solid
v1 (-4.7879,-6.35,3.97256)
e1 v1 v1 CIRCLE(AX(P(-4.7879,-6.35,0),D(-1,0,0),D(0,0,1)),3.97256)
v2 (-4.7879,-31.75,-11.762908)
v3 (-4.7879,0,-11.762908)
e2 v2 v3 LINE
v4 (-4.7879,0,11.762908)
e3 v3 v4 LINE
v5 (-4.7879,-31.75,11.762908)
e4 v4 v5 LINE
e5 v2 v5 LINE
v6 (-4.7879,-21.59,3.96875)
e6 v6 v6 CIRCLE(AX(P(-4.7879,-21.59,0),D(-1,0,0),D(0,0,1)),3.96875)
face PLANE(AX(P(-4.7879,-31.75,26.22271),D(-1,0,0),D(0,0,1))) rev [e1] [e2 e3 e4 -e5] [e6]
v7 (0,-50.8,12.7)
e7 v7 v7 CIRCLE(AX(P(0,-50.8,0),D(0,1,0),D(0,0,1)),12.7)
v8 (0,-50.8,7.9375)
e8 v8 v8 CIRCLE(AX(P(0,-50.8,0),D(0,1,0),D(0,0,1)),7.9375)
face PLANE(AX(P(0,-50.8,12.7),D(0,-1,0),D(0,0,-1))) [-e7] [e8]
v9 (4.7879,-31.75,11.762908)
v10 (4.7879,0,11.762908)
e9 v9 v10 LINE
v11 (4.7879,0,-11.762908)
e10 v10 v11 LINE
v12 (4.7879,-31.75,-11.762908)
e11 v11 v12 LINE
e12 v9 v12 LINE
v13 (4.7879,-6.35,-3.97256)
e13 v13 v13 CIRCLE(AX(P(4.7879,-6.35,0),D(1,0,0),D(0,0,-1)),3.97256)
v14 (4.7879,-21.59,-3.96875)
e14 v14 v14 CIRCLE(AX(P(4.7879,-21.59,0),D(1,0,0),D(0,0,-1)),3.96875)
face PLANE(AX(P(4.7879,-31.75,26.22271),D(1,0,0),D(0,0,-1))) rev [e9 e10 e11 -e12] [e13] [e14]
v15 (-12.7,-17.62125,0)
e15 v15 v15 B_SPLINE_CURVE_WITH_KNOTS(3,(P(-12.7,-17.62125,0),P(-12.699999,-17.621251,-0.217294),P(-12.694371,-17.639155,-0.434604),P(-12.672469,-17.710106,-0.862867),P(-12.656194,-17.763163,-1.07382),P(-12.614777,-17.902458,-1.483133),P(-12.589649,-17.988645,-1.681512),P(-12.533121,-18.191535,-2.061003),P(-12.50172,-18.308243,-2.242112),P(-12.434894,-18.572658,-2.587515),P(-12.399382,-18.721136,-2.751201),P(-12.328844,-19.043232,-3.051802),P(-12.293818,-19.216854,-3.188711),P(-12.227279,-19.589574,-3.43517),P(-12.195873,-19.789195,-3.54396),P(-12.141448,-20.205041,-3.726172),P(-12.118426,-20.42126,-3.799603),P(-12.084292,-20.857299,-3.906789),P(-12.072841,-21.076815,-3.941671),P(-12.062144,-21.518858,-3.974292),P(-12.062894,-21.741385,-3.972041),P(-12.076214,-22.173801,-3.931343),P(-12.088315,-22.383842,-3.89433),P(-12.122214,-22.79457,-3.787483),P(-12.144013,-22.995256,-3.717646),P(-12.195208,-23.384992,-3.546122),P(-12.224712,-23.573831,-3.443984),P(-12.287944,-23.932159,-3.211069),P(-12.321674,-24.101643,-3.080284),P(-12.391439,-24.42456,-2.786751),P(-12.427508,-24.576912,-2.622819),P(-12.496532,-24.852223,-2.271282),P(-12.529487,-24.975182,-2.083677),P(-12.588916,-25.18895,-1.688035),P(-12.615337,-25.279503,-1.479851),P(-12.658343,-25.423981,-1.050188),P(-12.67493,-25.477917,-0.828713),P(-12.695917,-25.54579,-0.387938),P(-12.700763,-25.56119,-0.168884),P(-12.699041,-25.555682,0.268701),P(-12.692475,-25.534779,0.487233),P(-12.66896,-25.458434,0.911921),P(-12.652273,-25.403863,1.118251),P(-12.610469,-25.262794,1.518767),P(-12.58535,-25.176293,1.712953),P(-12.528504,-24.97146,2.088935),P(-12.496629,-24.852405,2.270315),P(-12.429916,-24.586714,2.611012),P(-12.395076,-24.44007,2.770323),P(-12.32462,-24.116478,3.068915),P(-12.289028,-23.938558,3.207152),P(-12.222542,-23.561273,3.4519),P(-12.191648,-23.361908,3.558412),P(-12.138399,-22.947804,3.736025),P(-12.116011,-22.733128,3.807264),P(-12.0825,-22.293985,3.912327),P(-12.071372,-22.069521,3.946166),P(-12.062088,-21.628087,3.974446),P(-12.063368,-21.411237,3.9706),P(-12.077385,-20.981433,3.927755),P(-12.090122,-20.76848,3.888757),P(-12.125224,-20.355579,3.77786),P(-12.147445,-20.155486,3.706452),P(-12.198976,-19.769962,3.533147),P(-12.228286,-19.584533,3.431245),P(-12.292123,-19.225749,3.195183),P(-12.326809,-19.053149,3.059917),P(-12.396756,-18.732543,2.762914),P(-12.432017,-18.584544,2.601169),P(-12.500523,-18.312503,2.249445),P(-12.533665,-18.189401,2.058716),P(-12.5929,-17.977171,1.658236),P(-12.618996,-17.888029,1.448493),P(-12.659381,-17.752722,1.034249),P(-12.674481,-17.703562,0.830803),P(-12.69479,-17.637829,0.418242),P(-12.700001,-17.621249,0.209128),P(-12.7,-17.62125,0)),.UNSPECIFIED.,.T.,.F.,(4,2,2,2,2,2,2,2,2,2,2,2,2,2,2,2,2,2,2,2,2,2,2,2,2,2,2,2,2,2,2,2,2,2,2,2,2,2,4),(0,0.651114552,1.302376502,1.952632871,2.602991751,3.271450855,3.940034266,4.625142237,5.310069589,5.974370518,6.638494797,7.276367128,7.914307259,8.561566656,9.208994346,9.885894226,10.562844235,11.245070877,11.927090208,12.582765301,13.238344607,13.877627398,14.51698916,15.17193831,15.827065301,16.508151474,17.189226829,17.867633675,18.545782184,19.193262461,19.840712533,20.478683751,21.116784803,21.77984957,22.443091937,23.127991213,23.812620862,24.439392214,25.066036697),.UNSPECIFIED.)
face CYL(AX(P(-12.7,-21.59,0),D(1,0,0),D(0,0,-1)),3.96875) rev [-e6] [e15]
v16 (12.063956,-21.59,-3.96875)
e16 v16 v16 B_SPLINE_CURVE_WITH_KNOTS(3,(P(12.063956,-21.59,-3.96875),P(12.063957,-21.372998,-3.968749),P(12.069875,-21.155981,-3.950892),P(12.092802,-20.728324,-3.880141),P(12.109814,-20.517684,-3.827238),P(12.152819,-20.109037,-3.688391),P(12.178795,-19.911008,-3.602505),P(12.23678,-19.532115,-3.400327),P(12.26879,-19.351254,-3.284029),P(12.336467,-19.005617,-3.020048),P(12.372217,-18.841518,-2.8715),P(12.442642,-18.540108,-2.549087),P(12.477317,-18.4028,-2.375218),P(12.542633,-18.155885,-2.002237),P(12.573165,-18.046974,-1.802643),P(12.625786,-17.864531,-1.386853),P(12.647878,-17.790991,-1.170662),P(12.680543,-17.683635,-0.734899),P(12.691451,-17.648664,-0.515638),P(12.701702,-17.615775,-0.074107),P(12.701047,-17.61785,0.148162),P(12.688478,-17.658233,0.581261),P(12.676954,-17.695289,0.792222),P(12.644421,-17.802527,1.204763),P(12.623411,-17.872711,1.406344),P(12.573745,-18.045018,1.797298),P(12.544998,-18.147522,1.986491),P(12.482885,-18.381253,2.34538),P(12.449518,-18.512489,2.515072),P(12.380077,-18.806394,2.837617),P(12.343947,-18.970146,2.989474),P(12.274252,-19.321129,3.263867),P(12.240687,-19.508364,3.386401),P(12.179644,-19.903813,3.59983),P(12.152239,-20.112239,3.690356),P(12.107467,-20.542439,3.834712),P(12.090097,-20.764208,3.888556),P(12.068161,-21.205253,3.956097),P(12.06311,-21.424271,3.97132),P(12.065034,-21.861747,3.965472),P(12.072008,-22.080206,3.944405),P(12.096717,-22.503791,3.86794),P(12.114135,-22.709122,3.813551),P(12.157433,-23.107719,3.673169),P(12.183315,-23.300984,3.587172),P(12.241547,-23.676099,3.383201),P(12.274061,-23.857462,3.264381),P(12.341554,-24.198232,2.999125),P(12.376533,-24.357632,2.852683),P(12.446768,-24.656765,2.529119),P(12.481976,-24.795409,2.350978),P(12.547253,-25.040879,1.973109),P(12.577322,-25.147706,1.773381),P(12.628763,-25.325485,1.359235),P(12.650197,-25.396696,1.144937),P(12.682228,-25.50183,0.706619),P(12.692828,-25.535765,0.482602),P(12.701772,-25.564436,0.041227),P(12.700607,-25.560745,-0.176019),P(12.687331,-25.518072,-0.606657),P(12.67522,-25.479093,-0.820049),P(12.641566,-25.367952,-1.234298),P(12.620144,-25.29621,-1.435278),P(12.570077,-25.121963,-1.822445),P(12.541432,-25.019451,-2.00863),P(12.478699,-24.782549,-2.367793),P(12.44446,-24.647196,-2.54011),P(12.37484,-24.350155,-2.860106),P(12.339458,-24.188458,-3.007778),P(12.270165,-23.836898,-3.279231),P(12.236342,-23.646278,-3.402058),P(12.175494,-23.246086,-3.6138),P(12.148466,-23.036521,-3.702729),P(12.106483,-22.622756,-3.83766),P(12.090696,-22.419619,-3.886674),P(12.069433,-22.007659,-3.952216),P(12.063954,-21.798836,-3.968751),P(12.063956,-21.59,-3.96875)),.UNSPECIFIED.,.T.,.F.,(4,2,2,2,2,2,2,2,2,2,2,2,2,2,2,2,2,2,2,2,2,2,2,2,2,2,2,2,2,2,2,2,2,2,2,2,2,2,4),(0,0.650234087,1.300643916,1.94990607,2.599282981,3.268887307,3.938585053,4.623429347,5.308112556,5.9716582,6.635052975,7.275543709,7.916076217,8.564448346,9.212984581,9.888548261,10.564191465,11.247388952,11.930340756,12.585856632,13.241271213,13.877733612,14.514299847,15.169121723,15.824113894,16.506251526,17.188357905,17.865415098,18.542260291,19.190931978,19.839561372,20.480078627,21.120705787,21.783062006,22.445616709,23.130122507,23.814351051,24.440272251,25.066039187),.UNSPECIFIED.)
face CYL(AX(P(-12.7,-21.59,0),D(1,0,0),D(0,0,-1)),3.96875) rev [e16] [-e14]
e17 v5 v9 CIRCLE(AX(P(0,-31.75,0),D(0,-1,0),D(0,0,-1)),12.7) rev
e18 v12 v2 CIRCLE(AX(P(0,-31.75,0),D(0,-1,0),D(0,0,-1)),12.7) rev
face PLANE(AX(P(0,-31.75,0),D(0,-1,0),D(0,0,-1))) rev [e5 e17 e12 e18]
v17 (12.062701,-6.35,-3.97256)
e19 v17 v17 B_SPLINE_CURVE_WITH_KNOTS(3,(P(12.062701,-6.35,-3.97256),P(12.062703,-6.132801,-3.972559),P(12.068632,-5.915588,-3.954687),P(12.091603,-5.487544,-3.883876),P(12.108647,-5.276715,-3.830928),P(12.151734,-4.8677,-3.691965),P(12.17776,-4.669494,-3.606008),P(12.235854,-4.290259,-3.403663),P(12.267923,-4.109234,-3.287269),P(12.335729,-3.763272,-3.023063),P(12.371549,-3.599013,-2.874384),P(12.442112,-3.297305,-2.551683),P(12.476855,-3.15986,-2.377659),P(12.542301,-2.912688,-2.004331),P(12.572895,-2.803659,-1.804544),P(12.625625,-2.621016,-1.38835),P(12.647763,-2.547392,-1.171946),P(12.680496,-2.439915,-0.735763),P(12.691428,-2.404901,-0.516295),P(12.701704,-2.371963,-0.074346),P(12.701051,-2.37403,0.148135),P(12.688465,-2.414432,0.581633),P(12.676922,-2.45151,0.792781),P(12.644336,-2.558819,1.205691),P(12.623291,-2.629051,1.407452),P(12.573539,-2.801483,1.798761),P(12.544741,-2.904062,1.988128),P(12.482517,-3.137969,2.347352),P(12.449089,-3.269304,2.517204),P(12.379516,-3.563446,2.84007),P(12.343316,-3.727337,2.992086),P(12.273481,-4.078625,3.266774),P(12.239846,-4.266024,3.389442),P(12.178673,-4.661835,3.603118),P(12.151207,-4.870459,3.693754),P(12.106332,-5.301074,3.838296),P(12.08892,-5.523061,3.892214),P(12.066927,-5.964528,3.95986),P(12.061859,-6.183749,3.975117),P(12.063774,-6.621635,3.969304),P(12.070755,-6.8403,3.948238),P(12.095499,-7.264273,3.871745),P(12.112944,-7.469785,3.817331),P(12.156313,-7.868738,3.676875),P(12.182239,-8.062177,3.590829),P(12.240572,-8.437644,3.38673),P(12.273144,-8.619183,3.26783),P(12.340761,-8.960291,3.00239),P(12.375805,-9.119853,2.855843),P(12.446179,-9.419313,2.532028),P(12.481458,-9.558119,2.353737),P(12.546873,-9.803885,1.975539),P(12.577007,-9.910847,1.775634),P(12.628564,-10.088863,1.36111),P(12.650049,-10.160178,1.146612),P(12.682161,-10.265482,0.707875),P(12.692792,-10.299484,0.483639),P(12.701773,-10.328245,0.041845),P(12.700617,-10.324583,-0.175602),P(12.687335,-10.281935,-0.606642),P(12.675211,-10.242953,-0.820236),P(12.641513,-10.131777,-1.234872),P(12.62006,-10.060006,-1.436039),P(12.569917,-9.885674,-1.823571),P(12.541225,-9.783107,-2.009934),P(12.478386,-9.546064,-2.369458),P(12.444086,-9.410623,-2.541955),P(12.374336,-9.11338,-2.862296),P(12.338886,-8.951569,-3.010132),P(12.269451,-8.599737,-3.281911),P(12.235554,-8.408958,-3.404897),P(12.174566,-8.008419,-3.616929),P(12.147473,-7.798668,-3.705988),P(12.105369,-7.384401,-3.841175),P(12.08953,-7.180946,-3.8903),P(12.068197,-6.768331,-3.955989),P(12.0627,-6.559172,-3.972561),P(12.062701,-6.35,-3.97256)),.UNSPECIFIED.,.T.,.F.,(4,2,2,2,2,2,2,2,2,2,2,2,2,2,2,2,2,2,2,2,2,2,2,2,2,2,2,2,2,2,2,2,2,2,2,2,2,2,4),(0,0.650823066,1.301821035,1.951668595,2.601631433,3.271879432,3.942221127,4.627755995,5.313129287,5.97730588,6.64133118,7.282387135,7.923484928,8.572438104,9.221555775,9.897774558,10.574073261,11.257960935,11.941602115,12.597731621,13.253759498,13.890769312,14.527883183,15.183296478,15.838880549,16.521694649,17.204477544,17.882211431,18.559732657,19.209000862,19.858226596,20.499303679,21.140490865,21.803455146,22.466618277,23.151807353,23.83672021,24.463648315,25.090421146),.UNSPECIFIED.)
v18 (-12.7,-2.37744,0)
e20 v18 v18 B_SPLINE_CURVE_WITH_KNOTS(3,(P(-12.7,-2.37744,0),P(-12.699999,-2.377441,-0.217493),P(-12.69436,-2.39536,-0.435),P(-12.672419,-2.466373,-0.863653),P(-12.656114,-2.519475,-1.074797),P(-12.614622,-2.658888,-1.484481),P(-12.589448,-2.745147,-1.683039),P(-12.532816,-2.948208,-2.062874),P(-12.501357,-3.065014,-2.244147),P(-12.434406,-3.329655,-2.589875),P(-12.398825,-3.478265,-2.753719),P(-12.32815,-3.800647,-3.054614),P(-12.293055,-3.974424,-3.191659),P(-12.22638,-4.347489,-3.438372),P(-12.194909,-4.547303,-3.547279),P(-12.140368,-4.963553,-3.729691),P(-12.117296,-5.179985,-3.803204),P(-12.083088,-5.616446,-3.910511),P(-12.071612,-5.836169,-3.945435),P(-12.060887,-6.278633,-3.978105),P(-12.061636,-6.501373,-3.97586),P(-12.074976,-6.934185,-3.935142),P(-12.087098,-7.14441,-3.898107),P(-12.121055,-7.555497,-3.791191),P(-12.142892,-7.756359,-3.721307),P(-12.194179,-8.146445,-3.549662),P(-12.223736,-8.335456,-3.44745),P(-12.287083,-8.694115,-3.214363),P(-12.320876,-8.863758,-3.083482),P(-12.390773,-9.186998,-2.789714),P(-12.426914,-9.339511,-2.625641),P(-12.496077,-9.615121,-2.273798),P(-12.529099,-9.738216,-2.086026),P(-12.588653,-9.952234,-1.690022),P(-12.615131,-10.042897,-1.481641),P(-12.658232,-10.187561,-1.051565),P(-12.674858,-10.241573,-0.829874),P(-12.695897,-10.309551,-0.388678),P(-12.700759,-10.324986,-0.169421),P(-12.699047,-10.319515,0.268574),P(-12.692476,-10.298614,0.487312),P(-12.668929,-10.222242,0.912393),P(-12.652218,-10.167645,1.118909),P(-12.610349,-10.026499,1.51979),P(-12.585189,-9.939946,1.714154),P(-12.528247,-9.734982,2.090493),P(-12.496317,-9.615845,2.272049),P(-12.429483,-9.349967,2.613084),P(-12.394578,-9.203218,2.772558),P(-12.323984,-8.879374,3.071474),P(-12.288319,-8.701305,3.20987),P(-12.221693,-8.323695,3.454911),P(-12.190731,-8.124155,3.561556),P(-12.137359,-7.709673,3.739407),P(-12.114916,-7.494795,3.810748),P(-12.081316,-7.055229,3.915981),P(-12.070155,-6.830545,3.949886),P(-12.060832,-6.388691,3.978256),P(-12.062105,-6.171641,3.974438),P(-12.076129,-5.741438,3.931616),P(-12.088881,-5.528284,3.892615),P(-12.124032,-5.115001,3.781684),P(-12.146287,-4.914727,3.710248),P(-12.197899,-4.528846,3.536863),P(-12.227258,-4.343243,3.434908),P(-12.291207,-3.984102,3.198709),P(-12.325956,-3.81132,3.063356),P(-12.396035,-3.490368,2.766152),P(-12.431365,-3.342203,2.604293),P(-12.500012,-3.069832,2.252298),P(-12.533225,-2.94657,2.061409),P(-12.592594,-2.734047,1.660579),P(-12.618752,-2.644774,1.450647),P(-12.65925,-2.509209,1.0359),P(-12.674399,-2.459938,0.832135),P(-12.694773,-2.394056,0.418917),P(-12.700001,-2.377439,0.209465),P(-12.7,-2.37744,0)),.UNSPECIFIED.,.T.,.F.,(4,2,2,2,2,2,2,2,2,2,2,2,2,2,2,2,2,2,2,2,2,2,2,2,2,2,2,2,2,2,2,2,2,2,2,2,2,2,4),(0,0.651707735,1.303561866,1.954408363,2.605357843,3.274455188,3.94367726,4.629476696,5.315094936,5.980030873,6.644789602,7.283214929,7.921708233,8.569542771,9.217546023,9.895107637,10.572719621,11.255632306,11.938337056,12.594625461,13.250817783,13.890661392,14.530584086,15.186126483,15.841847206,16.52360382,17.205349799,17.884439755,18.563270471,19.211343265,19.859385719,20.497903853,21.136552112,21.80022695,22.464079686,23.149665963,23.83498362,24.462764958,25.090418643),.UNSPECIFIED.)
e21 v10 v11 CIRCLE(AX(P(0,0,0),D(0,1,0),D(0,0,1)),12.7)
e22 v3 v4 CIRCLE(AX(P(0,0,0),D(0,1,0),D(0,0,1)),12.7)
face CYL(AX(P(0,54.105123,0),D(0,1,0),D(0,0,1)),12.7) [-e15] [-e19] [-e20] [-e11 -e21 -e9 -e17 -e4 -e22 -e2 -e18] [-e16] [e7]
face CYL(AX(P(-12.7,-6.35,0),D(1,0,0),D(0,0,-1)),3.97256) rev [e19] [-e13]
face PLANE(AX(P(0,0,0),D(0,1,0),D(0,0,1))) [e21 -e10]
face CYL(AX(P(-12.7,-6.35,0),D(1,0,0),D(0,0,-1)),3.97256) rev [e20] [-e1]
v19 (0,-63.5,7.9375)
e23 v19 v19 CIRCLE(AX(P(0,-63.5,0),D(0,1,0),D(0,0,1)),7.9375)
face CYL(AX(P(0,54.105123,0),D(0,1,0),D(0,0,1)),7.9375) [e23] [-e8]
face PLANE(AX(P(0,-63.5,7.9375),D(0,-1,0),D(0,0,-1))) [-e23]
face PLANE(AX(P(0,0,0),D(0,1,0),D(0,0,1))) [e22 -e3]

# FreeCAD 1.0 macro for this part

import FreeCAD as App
import Part
import Sketcher

V = App.Vector
Q = App.Units.Quantity


def add_polygon(sketch, points):
    """Adds a closed chain of lines whose ends are joined by coincident constraints."""
    first, n = sketch.GeometryCount, len(points)
    for a, b in zip(points, points[1:] + points[:1]):
        sketch.addGeometry(Part.LineSegment(App.Vector(*a, 0), App.Vector(*b, 0)), False)
    for i in range(n):
        sketch.addConstraint(Sketcher.Constraint("Coincident", first + i, 2, first + (i + 1) % n, 1))

doc = App.newDocument("Part")
body = doc.addObject("PartDesign::Body", "Body")

# Sketch on YZ plane
sketch1 = doc.addObject("Sketcher::SketchObject", "Sketch")
body.addObject(sketch1)
sketch1.AttachmentSupport = (doc.YZ_Plane, [""])
sketch1.MapMode = "FlatFace"
add_polygon(sketch1, [(0, 0), (0, 12.7), (-50.8, 12.7), (-50.8, 7.9), (-63.5, 7.9), (-63.5, 0)])  # lines 0-5
sketch1.addConstraint(Sketcher.Constraint("Vertical", 0))
sketch1.addConstraint(Sketcher.Constraint("Horizontal", 1))
sketch1.addConstraint(Sketcher.Constraint("Vertical", 2))
sketch1.addConstraint(Sketcher.Constraint("Horizontal", 3))
sketch1.addConstraint(Sketcher.Constraint("Vertical", 4))
sketch1.addConstraint(Sketcher.Constraint("Horizontal", 5))
sketch1.addConstraint(Sketcher.Constraint("Coincident", 5, 2, -1, 1))
sketch1.addConstraint(Sketcher.Constraint("Equal", 3, 0))
sketch1.addConstraint(Sketcher.Constraint("DistanceX", 1, 2, 1, 1, Q("2 in")))
sketch1.addConstraint(Sketcher.Constraint("DistanceX", 3, 2, 3, 1, Q("0.5 in")))
sketch1.addConstraint(Sketcher.Constraint("DistanceY", 2, 2, 2, 1, Q("0.1875 in")))
revolution = doc.addObject("PartDesign::Revolution", "Revolution")
body.addObject(revolution)
revolution.Profile = sketch1
revolution.ReferenceAxis = (sketch1, ["H_Axis"])
revolution.Angle = 360

# Sketch on XZ plane
sketch2 = doc.addObject("Sketcher::SketchObject", "Sketch001")
body.addObject(sketch2)
sketch2.AttachmentSupport = (doc.XZ_Plane, [""])
sketch2.MapMode = "FlatFace"
add_polygon(sketch2, [(-5, -26), (-5, 26), (5, 26), (5, -26)])  # lines 0-3
sketch2.addConstraint(Sketcher.Constraint("Vertical", 0))
sketch2.addConstraint(Sketcher.Constraint("Horizontal", 1))
sketch2.addConstraint(Sketcher.Constraint("Vertical", 2))
sketch2.addConstraint(Sketcher.Constraint("Horizontal", 3))
sketch2.addConstraint(Sketcher.Constraint("Symmetric", 0, 2, 2, 2, -1, 1))
sketch2.addConstraint(Sketcher.Constraint("DistanceX", 1, 1, 1, 2, Q("0.377 in")))
sketch2.addConstraint(Sketcher.Constraint("DistanceY", 0, 1, 0, 2, Q("52.44542 mm")))
pocket1 = doc.addObject("PartDesign::Pocket", "Pocket")
body.addObject(pocket1)
pocket1.Profile = sketch2
pocket1.Length = Q("1.25 in")
pocket1.Reversed = True

# Sketch on YZ plane
sketch3 = doc.addObject("Sketcher::SketchObject", "Sketch002")
body.addObject(sketch3)
sketch3.AttachmentSupport = (doc.YZ_Plane, [""])
sketch3.MapMode = "FlatFace"
sketch3.AttachmentOffset = App.Placement(V(0, 0, 0.5 * 25.4), App.Rotation())
sketch3.addGeometry(Part.Circle(V(-6.3, 0, 0), V(0, 0, 1), 4), False)
sketch3.addGeometry(Part.Circle(V(-21.6, 0, 0), V(0, 0, 1), 4), False)
sketch3.addConstraint(Sketcher.Constraint("PointOnObject", 0, 3, -1))
sketch3.addConstraint(Sketcher.Constraint("PointOnObject", 1, 3, -1))
sketch3.addConstraint(Sketcher.Constraint("Diameter", 1, Q("0.3125 in")))
sketch3.addConstraint(Sketcher.Constraint("Diameter", 0, Q("0.3128 in")))
sketch3.addConstraint(Sketcher.Constraint("DistanceX", 1, 3, 0, 3, Q("0.6 in")))
sketch3.addConstraint(Sketcher.Constraint("DistanceX", 0, 3, -1, 1, Q("0.25 in")))
pocket2 = doc.addObject("PartDesign::Pocket", "Pocket001")
body.addObject(pocket2)
pocket2.Profile = sketch3
pocket2.Type = "ThroughAll"

doc.recompute()
